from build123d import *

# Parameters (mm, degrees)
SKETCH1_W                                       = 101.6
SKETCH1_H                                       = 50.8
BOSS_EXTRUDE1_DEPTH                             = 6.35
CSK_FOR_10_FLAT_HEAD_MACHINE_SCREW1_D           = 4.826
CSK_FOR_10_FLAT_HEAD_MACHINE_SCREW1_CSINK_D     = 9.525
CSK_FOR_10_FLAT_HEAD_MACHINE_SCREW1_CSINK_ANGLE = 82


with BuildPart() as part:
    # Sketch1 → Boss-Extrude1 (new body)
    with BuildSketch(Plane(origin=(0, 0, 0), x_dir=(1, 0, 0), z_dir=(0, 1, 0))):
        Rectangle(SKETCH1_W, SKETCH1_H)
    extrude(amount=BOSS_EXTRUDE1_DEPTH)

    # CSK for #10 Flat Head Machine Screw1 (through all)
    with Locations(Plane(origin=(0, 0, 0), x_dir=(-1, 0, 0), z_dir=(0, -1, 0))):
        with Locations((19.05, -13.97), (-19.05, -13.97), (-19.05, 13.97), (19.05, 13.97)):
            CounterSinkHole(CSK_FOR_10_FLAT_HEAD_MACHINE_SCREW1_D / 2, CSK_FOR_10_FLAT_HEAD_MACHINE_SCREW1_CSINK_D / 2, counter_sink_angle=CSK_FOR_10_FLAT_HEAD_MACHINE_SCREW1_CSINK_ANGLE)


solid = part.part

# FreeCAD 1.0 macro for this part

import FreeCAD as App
import Part
import Sketcher
Q = App.Units.Quantity


def add_polygon(sketch, points):
    """Adds a closed chain of lines whose ends are joined by coincident constraints."""
    first, n = sketch.GeometryCount, len(points)
    for a, b in zip(points, points[1:] + points[:1]):
        sketch.addGeometry(Part.LineSegment(App.Vector(*a, 0), App.Vector(*b, 0)), False)
    for i in range(n):
        sketch.addConstraint(Sketcher.Constraint("Coincident", first + i, 2, first + (i + 1) % n, 1))

doc = App.newDocument("Part")
body = doc.addObject("PartDesign::Body", "Body")

sketch1 = body.newObject("Sketcher::SketchObject", "Sketch")
sketch1.AttachmentSupport = (doc.getObject("XZ_Plane"), [""])
sketch1.MapMode = "FlatFace"
add_polygon(sketch1, [(-50.8, -25.4), (-50.8, 25.4), (50.8, 25.4), (50.8, -25.4)])
sketch1.addConstraint([
    Sketcher.Constraint("Vertical", 0),
    Sketcher.Constraint("Horizontal", 1),
    Sketcher.Constraint("Vertical", 2),
    Sketcher.Constraint("Horizontal", 3),
    Sketcher.Constraint("Symmetric", 0, 2, 2, 2, -1, 1),
    Sketcher.Constraint("DistanceX", 1, 1, 1, 2, Q("4 in")),
    Sketcher.Constraint("DistanceY", 0, 1, 0, 2, Q("2 in")),
])
pad1 = body.newObject("PartDesign::Pad", "Pad")
pad1.Profile = sketch1
pad1.Length = Q("0.25 in")
pad1.Reversed = True

sketch2 = body.newObject("Sketcher::SketchObject", "Sketch001")
sketch2.AttachmentSupport = (doc.getObject("XZ_Plane"), [""])
sketch2.MapMode = "FlatFace"
sketch2.addGeometry([
    Part.Circle(App.Vector(-19.05, 13.97, 0), App.Vector(0, 0, 1), 2.413),
    Part.Circle(App.Vector(19.05, 13.97, 0), App.Vector(0, 0, 1), 2.413),
    Part.Circle(App.Vector(19.05, -13.97, 0), App.Vector(0, 0, 1), 2.413),
    Part.Circle(App.Vector(-19.05, -13.97, 0), App.Vector(0, 0, 1), 2.413),
], False)
sketch2.addConstraint([
    Sketcher.Constraint("Equal", 0, 1),
    Sketcher.Constraint("Equal", 1, 2),
    Sketcher.Constraint("Equal", 2, 3),
    Sketcher.Constraint("Symmetric", 0, 3, 2, 3, -1, 1),
    Sketcher.Constraint("Symmetric", 1, 3, 3, 3, -1, 1),
    Sketcher.Constraint("Symmetric", 0, 3, 1, 3, -2),
    Sketcher.Constraint("Diameter", 0, Q("0.19 in")),
    Sketcher.Constraint("DistanceX", 0, 3, 1, 3, Q("1.5 in")),
    Sketcher.Constraint("DistanceY", 2, 3, 1, 3, Q("1.1 in")),
])
doc.recompute()
hole = body.newObject("PartDesign::Hole", "Hole")
hole.Profile = sketch2
hole.ThreadType = "None"
hole.Diameter = Q("0.19 in")
hole.DepthType = "ThroughAll"
hole.HoleCutType = "Countersink"
hole.HoleCutDiameter = Q("0.375 in")
hole.HoleCutCountersinkAngle = 82

doc.recompute()
